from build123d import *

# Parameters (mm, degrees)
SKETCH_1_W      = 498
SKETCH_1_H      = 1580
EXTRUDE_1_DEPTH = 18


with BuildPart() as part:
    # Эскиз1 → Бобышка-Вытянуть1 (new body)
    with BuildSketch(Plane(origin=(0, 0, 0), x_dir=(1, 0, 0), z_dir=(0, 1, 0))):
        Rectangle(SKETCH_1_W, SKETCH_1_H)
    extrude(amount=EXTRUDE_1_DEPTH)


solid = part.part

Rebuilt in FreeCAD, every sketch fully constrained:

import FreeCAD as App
import Part
import Sketcher
Q = App.Units.Quantity

doc = App.newDocument("Part")
body = doc.addObject("PartDesign::Body", "Body")

sketch1 = body.newObject("Sketcher::SketchObject", "Sketch")
sketch1.AttachmentSupport = (doc.getObject("XZ_Plane"), [""])
sketch1.MapMode = "FlatFace"
sketch1.addGeometry([
    Part.LineSegment(App.Vector(-249, -790, 0), App.Vector(-249, 790, 0)),
    Part.LineSegment(App.Vector(-249, 790, 0), App.Vector(249, 790, 0)),
    Part.LineSegment(App.Vector(249, 790, 0), App.Vector(249, -790, 0)),
    Part.LineSegment(App.Vector(249, -790, 0), App.Vector(-249, -790, 0)),
], False)
sketch1.addConstraint([
    Sketcher.Constraint("Coincident", 0, 2, 1, 1),
    Sketcher.Constraint("Coincident", 1, 2, 2, 1),
    Sketcher.Constraint("Coincident", 2, 2, 3, 1),
    Sketcher.Constraint("Coincident", 3, 2, 0, 1),
    Sketcher.Constraint("Vertical", 0),
    Sketcher.Constraint("Horizontal", 1),
    Sketcher.Constraint("Vertical", 2),
    Sketcher.Constraint("Horizontal", 3),
    Sketcher.Constraint("Symmetric", 0, 2, 2, 2, -1, 1),
    Sketcher.Constraint("DistanceX", 1, 1, 1, 2, Q("498 mm")),
    Sketcher.Constraint("DistanceY", 0, 1, 0, 2, Q("1580 mm")),
])
pad1 = body.newObject("PartDesign::Pad", "Pad")
pad1.Profile = sketch1
pad1.Length = 18
pad1.Reversed = True

doc.recompute()
